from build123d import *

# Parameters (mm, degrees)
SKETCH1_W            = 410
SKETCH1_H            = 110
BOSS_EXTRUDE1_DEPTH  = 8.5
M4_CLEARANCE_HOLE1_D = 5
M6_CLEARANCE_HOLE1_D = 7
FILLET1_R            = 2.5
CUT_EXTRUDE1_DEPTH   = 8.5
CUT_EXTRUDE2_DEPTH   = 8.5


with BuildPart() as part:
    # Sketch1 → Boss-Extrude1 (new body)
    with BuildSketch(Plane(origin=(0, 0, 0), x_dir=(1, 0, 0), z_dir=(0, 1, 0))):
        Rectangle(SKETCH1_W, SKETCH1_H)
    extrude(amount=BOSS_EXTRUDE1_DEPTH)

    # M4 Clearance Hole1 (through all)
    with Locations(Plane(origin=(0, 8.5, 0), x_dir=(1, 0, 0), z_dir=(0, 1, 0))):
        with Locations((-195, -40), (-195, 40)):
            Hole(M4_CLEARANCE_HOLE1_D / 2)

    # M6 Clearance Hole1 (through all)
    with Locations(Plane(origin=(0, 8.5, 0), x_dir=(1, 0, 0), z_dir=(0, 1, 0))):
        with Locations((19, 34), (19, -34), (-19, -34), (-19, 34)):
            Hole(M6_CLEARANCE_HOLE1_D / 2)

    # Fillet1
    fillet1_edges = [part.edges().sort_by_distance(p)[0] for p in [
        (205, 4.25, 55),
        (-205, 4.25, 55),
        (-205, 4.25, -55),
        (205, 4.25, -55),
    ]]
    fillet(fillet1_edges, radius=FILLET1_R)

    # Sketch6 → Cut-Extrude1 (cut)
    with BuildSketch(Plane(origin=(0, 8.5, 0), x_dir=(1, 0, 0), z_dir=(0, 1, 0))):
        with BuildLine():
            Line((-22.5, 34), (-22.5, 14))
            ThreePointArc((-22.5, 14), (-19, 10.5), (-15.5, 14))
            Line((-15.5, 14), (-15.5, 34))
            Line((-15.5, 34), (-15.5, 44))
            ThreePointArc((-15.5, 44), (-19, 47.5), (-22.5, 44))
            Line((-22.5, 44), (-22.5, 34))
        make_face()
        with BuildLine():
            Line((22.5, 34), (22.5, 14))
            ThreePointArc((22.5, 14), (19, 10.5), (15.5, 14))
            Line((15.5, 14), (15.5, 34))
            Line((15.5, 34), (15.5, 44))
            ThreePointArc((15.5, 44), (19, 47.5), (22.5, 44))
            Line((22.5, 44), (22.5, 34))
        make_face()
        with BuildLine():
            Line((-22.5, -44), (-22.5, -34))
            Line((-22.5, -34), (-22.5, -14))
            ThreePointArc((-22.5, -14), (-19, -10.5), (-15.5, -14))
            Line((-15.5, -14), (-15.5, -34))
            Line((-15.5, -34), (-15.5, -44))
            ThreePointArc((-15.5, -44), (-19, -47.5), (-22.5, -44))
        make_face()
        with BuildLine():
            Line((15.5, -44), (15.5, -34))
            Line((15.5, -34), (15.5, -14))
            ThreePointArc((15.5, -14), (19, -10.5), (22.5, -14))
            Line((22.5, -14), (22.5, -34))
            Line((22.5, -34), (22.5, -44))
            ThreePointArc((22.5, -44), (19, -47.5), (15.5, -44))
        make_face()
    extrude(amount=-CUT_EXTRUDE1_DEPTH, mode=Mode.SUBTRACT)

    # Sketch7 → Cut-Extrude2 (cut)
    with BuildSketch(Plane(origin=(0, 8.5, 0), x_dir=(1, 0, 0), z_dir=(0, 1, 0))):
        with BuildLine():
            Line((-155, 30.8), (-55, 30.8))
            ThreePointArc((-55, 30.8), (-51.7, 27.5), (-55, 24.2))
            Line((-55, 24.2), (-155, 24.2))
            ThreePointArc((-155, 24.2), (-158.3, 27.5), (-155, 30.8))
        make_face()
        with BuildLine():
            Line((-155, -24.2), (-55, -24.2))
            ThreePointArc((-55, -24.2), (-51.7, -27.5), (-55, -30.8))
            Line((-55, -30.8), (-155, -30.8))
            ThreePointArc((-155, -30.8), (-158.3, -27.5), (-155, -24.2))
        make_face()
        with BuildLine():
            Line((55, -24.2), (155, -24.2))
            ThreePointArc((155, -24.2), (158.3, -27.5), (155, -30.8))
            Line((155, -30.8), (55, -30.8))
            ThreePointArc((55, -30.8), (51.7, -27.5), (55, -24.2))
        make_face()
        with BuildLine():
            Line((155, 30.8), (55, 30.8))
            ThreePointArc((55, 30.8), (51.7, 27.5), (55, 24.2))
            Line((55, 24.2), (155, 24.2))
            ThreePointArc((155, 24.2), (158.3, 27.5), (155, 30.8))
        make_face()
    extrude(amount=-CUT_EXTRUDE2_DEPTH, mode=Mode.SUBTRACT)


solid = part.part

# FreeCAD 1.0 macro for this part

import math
import FreeCAD as App
import Part
import Sketcher


def edges_at(feature, points):
    """Names of the edges that pass closest to the given points."""
    edges = feature.Shape.Edges
    near = lambda p: min(range(len(edges)), key=lambda i: edges[i].distToShape(Part.Vertex(*p))[0])
    return sorted({f"Edge{near(p) + 1}" for p in points})

doc = App.newDocument("Part")
body = doc.addObject("PartDesign::Body", "Body")

# Sketch on XZ plane
sketch1 = doc.addObject("Sketcher::SketchObject", "Sketch")
body.addObject(sketch1)
sketch1.AttachmentSupport = (doc.XZ_Plane, [""])
sketch1.MapMode = "FlatFace"
sketch1.addGeometry(Part.LineSegment(App.Vector(-205, -55, 0), App.Vector(-205, 55, 0)), False)
sketch1.addGeometry(Part.LineSegment(App.Vector(-205, 55, 0), App.Vector(205, 55, 0)), False)
sketch1.addGeometry(Part.LineSegment(App.Vector(205, 55, 0), App.Vector(205, -55, 0)), False)
sketch1.addGeometry(Part.LineSegment(App.Vector(205, -55, 0), App.Vector(-205, -55, 0)), False)
sketch1.addConstraint(Sketcher.Constraint("Coincident", 0, 2, 1, 1))
sketch1.addConstraint(Sketcher.Constraint("Coincident", 1, 2, 2, 1))
sketch1.addConstraint(Sketcher.Constraint("Coincident", 2, 2, 3, 1))
sketch1.addConstraint(Sketcher.Constraint("Coincident", 3, 2, 0, 1))
sketch1.addConstraint(Sketcher.Constraint("Vertical", 0))
sketch1.addConstraint(Sketcher.Constraint("Horizontal", 1))
sketch1.addConstraint(Sketcher.Constraint("Vertical", 2))
sketch1.addConstraint(Sketcher.Constraint("Horizontal", 3))
sketch1.addConstraint(Sketcher.Constraint("Symmetric", 0, 2, 2, 2, -1, 1))
sketch1.addConstraint(Sketcher.Constraint("DistanceX", 1, 1, 1, 2, 410.0))
sketch1.addConstraint(Sketcher.Constraint("DistanceY", 0, 1, 0, 2, 110.0))
pad1 = doc.addObject("PartDesign::Pad", "Pad")
body.addObject(pad1)
pad1.Profile = sketch1
pad1.Length = 8.5
pad1.Reversed = True

# Sketch on XZ plane
sketch2 = doc.addObject("Sketcher::SketchObject", "Sketch001")
body.addObject(sketch2)
sketch2.AttachmentSupport = (doc.XZ_Plane, [""])
sketch2.MapMode = "FlatFace"
sketch2.AttachmentOffset = App.Placement(App.Vector(0, 0, -8.5), App.Rotation())
sketch2.addGeometry(Part.Circle(App.Vector(-195, 40, 0), App.Vector(0, 0, 1), 2.5), False)
sketch2.addGeometry(Part.Circle(App.Vector(-195, -40, 0), App.Vector(0, 0, 1), 2.5), False)
sketch2.addConstraint(Sketcher.Constraint("Equal", 0, 1))
sketch2.addConstraint(Sketcher.Constraint("Symmetric", 0, 3, 1, 3, -1))
sketch2.addConstraint(Sketcher.Constraint("Diameter", 0, 5.0))
sketch2.addConstraint(Sketcher.Constraint("DistanceX", 0, 3, -1, 1, 195.0))
sketch2.addConstraint(Sketcher.Constraint("DistanceY", -1, 1, 0, 3, 40.0))
doc.recompute()
hole = doc.addObject("PartDesign::Hole", "Hole")
body.addObject(hole)
hole.Profile = sketch2
hole.ThreadType = "None"
hole.Diameter = 5
hole.DepthType = "ThroughAll"
hole.Reversed = True

# Sketch on XZ plane
sketch3 = doc.addObject("Sketcher::SketchObject", "Sketch002")
body.addObject(sketch3)
sketch3.AttachmentSupport = (doc.XZ_Plane, [""])
sketch3.MapMode = "FlatFace"
sketch3.AttachmentOffset = App.Placement(App.Vector(0, 0, -8.5), App.Rotation())
sketch3.addGeometry(Part.Circle(App.Vector(19, -34, 0), App.Vector(0, 0, 1), 3.5), False)
sketch3.addGeometry(Part.Circle(App.Vector(19, 34, 0), App.Vector(0, 0, 1), 3.5), False)
sketch3.addGeometry(Part.Circle(App.Vector(-19, 34, 0), App.Vector(0, 0, 1), 3.5), False)
sketch3.addGeometry(Part.Circle(App.Vector(-19, -34, 0), App.Vector(0, 0, 1), 3.5), False)
sketch3.addConstraint(Sketcher.Constraint("Equal", 0, 1))
sketch3.addConstraint(Sketcher.Constraint("Equal", 1, 2))
sketch3.addConstraint(Sketcher.Constraint("Equal", 2, 3))
sketch3.addConstraint(Sketcher.Constraint("Symmetric", 0, 3, 2, 3, -1, 1))
sketch3.addConstraint(Sketcher.Constraint("Symmetric", 1, 3, 3, 3, -1, 1))
sketch3.addConstraint(Sketcher.Constraint("Symmetric", 1, 3, 2, 3, -2))
sketch3.addConstraint(Sketcher.Constraint("Diameter", 0, 7.0))
sketch3.addConstraint(Sketcher.Constraint("DistanceX", -1, 1, 0, 3, 19.0))
sketch3.addConstraint(Sketcher.Constraint("DistanceY", 0, 3, -1, 1, 34.0))
doc.recompute()
hole2 = doc.addObject("PartDesign::Hole", "Hole001")
body.addObject(hole2)
hole2.Profile = sketch3
hole2.ThreadType = "None"
hole2.Diameter = 7
hole2.DepthType = "ThroughAll"
hole2.Reversed = True
doc.recompute()

fillet = doc.addObject("PartDesign::Fillet", "Fillet")
body.addObject(fillet)
fillet.Base = (hole2, edges_at(hole2, [
    (205, 4.25, 55),
    (-205, 4.25, 55),
    (-205, 4.25, -55),
    (205, 4.25, -55),
]))
fillet.Radius = 2.5

# Sketch on XZ plane
sketch4 = doc.addObject("Sketcher::SketchObject", "Sketch003")
body.addObject(sketch4)
sketch4.AttachmentSupport = (doc.XZ_Plane, [""])
sketch4.MapMode = "FlatFace"
sketch4.AttachmentOffset = App.Placement(App.Vector(0, 0, -8.5), App.Rotation())
sketch4.addGeometry(Part.ArcOfCircle(Part.Circle(App.Vector(-19, -14, 0), App.Vector(0, 0, 1), 3.5), math.radians(0), math.radians(180)), False)
sketch4.addGeometry(Part.LineSegment(App.Vector(-15.5, -14, 0), App.Vector(-15.5, -44, 0)), False)
sketch4.addGeometry(Part.ArcOfCircle(Part.Circle(App.Vector(-19, -44, 0), App.Vector(0, 0, 1), 3.5), math.radians(180), math.radians(360)), False)
sketch4.addGeometry(Part.LineSegment(App.Vector(-22.5, -44, 0), App.Vector(-22.5, -14, 0)), False)
sketch4.addGeometry(Part.ArcOfCircle(Part.Circle(App.Vector(19, -14, 0), App.Vector(0, 0, 1), 3.5), math.radians(0), math.radians(180)), False)
sketch4.addGeometry(Part.LineSegment(App.Vector(22.5, -14, 0), App.Vector(22.5, -44, 0)), False)
sketch4.addGeometry(Part.ArcOfCircle(Part.Circle(App.Vector(19, -44, 0), App.Vector(0, 0, 1), 3.5), math.radians(180), math.radians(360)), False)
sketch4.addGeometry(Part.LineSegment(App.Vector(15.5, -44, 0), App.Vector(15.5, -14, 0)), False)
sketch4.addGeometry(Part.LineSegment(App.Vector(-22.5, 14, 0), App.Vector(-22.5, 44, 0)), False)
sketch4.addGeometry(Part.ArcOfCircle(Part.Circle(App.Vector(-19, 44, 0), App.Vector(0, 0, 1), 3.5), math.radians(0), math.radians(180)), False)
sketch4.addGeometry(Part.LineSegment(App.Vector(-15.5, 44, 0), App.Vector(-15.5, 14, 0)), False)
sketch4.addGeometry(Part.ArcOfCircle(Part.Circle(App.Vector(-19, 14, 0), App.Vector(0, 0, 1), 3.5), math.radians(180), math.radians(360)), False)
sketch4.addGeometry(Part.LineSegment(App.Vector(15.5, 14, 0), App.Vector(15.5, 44, 0)), False)
sketch4.addGeometry(Part.ArcOfCircle(Part.Circle(App.Vector(19, 44, 0), App.Vector(0, 0, 1), 3.5), math.radians(0), math.radians(180)), False)
sketch4.addGeometry(Part.LineSegment(App.Vector(22.5, 44, 0), App.Vector(22.5, 14, 0)), False)
sketch4.addGeometry(Part.ArcOfCircle(Part.Circle(App.Vector(19, 14, 0), App.Vector(0, 0, 1), 3.5), math.radians(180), math.radians(360)), False)
sketch4.addConstraint(Sketcher.Constraint("Tangent", 0, 1, 1, 1))
sketch4.addConstraint(Sketcher.Constraint("Tangent", 1, 2, 2, 2))
sketch4.addConstraint(Sketcher.Constraint("Tangent", 2, 1, 3, 1))
sketch4.addConstraint(Sketcher.Constraint("Tangent", 3, 2, 0, 2))
sketch4.addConstraint(Sketcher.Constraint("Tangent", 4, 1, 5, 1))
sketch4.addConstraint(Sketcher.Constraint("Tangent", 5, 2, 6, 2))
sketch4.addConstraint(Sketcher.Constraint("Tangent", 6, 1, 7, 1))
sketch4.addConstraint(Sketcher.Constraint("Tangent", 7, 2, 4, 2))
sketch4.addConstraint(Sketcher.Constraint("Tangent", 8, 2, 9, 2))
sketch4.addConstraint(Sketcher.Constraint("Tangent", 9, 1, 10, 1))
sketch4.addConstraint(Sketcher.Constraint("Tangent", 10, 2, 11, 2))
sketch4.addConstraint(Sketcher.Constraint("Tangent", 11, 1, 8, 1))
sketch4.addConstraint(Sketcher.Constraint("Tangent", 12, 2, 13, 2))
sketch4.addConstraint(Sketcher.Constraint("Tangent", 13, 1, 14, 1))
sketch4.addConstraint(Sketcher.Constraint("Tangent", 14, 2, 15, 2))
sketch4.addConstraint(Sketcher.Constraint("Tangent", 15, 1, 12, 1))
sketch4.addConstraint(Sketcher.Constraint("Vertical", 1))
sketch4.addConstraint(Sketcher.Constraint("Vertical", 3))
sketch4.addConstraint(Sketcher.Constraint("Vertical", 5))
sketch4.addConstraint(Sketcher.Constraint("Vertical", 7))
sketch4.addConstraint(Sketcher.Constraint("Vertical", 8))
sketch4.addConstraint(Sketcher.Constraint("Vertical", 10))
sketch4.addConstraint(Sketcher.Constraint("Vertical", 12))
sketch4.addConstraint(Sketcher.Constraint("Vertical", 14))
sketch4.addConstraint(Sketcher.Constraint("Equal", 2, 4))
sketch4.addConstraint(Sketcher.Constraint("Equal", 6, 9))
sketch4.addConstraint(Sketcher.Constraint("Equal", 11, 13))
sketch4.addConstraint(Sketcher.Constraint("Symmetric", 6, 3, 9, 3, -1, 1))
sketch4.addConstraint(Sketcher.Constraint("Symmetric", 2, 3, 13, 3, -1, 1))
sketch4.addConstraint(Sketcher.Constraint("Symmetric", 0, 3, 4, 3, -2))
sketch4.addConstraint(Sketcher.Constraint("Horizontal", 2, 3, 6, 3))
sketch4.addConstraint(Sketcher.Constraint("Horizontal", 11, 3, 15, 3))
sketch4.addConstraint(Sketcher.Constraint("Equal", 7, 8))
sketch4.addConstraint(Sketcher.Constraint("Radius", 0, 3.5))
sketch4.addConstraint(Sketcher.Constraint("DistanceY", 1, 2, 1, 1, 30.0))
sketch4.addConstraint(Sketcher.Constraint("DistanceX", 0, 3, -1, 1, 19.0))
sketch4.addConstraint(Sketcher.Constraint("DistanceY", 0, 3, -1, 1, 14.0))
pocket1 = doc.addObject("PartDesign::Pocket", "Pocket")
body.addObject(pocket1)
pocket1.Profile = sketch4
pocket1.Length = 8.5
pocket1.Reversed = True

# Sketch on XZ plane
sketch5 = doc.addObject("Sketcher::SketchObject", "Sketch004")
body.addObject(sketch5)
sketch5.AttachmentSupport = (doc.XZ_Plane, [""])
sketch5.MapMode = "FlatFace"
sketch5.AttachmentOffset = App.Placement(App.Vector(0, 0, -8.5), App.Rotation())
sketch5.addGeometry(Part.LineSegment(App.Vector(-55, -30.8, 0), App.Vector(-155, -30.8, 0)), False)
sketch5.addGeometry(Part.ArcOfCircle(Part.Circle(App.Vector(-155, -27.5, 0), App.Vector(0, 0, 1), 3.3), math.radians(90), math.radians(270)), False)
sketch5.addGeometry(Part.LineSegment(App.Vector(-155, -24.2, 0), App.Vector(-55, -24.2, 0)), False)
sketch5.addGeometry(Part.ArcOfCircle(Part.Circle(App.Vector(-55, -27.5, 0), App.Vector(0, 0, 1), 3.3), math.radians(-90), math.radians(90)), False)
sketch5.addGeometry(Part.LineSegment(App.Vector(-55, 24.2, 0), App.Vector(-155, 24.2, 0)), False)
sketch5.addGeometry(Part.ArcOfCircle(Part.Circle(App.Vector(-155, 27.5, 0), App.Vector(0, 0, 1), 3.3), math.radians(90), math.radians(270)), False)
sketch5.addGeometry(Part.LineSegment(App.Vector(-155, 30.8, 0), App.Vector(-55, 30.8, 0)), False)
sketch5.addGeometry(Part.ArcOfCircle(Part.Circle(App.Vector(-55, 27.5, 0), App.Vector(0, 0, 1), 3.3), math.radians(-90), math.radians(90)), False)
sketch5.addGeometry(Part.LineSegment(App.Vector(155, 24.2, 0), App.Vector(55, 24.2, 0)), False)
sketch5.addGeometry(Part.ArcOfCircle(Part.Circle(App.Vector(55, 27.5, 0), App.Vector(0, 0, 1), 3.3), math.radians(90), math.radians(270)), False)
sketch5.addGeometry(Part.LineSegment(App.Vector(55, 30.8, 0), App.Vector(155, 30.8, 0)), False)
sketch5.addGeometry(Part.ArcOfCircle(Part.Circle(App.Vector(155, 27.5, 0), App.Vector(0, 0, 1), 3.3), math.radians(-90), math.radians(90)), False)
sketch5.addGeometry(Part.LineSegment(App.Vector(155, -30.8, 0), App.Vector(55, -30.8, 0)), False)
sketch5.addGeometry(Part.ArcOfCircle(Part.Circle(App.Vector(55, -27.5, 0), App.Vector(0, 0, 1), 3.3), math.radians(90), math.radians(270)), False)
sketch5.addGeometry(Part.LineSegment(App.Vector(55, -24.2, 0), App.Vector(155, -24.2, 0)), False)
sketch5.addGeometry(Part.ArcOfCircle(Part.Circle(App.Vector(155, -27.5, 0), App.Vector(0, 0, 1), 3.3), math.radians(-90), math.radians(90)), False)
sketch5.addConstraint(Sketcher.Constraint("Tangent", 0, 2, 1, 2))
sketch5.addConstraint(Sketcher.Constraint("Tangent", 1, 1, 2, 1))
sketch5.addConstraint(Sketcher.Constraint("Tangent", 2, 2, 3, 2))
sketch5.addConstraint(Sketcher.Constraint("Tangent", 3, 1, 0, 1))
sketch5.addConstraint(Sketcher.Constraint("Tangent", 4, 2, 5, 2))
sketch5.addConstraint(Sketcher.Constraint("Tangent", 5, 1, 6, 1))
sketch5.addConstraint(Sketcher.Constraint("Tangent", 6, 2, 7, 2))
sketch5.addConstraint(Sketcher.Constraint("Tangent", 7, 1, 4, 1))
sketch5.addConstraint(Sketcher.Constraint("Tangent", 8, 2, 9, 2))
sketch5.addConstraint(Sketcher.Constraint("Tangent", 9, 1, 10, 1))
sketch5.addConstraint(Sketcher.Constraint("Tangent", 10, 2, 11, 2))
sketch5.addConstraint(Sketcher.Constraint("Tangent", 11, 1, 8, 1))
sketch5.addConstraint(Sketcher.Constraint("Tangent", 12, 2, 13, 2))
sketch5.addConstraint(Sketcher.Constraint("Tangent", 13, 1, 14, 1))
sketch5.addConstraint(Sketcher.Constraint("Tangent", 14, 2, 15, 2))
sketch5.addConstraint(Sketcher.Constraint("Tangent", 15, 1, 12, 1))
sketch5.addConstraint(Sketcher.Constraint("Horizontal", 0))
sketch5.addConstraint(Sketcher.Constraint("Horizontal", 2))
sketch5.addConstraint(Sketcher.Constraint("Horizontal", 4))
sketch5.addConstraint(Sketcher.Constraint("Horizontal", 6))
sketch5.addConstraint(Sketcher.Constraint("Horizontal", 8))
sketch5.addConstraint(Sketcher.Constraint("Horizontal", 10))
sketch5.addConstraint(Sketcher.Constraint("Horizontal", 12))
sketch5.addConstraint(Sketcher.Constraint("Horizontal", 14))
sketch5.addConstraint(Sketcher.Constraint("Equal", 3, 5))
sketch5.addConstraint(Sketcher.Constraint("Equal", 7, 9))
sketch5.addConstraint(Sketcher.Constraint("Equal", 11, 13))
sketch5.addConstraint(Sketcher.Constraint("Symmetric", 3, 3, 9, 3, -1, 1))
sketch5.addConstraint(Sketcher.Constraint("Symmetric", 7, 3, 13, 3, -1, 1))
sketch5.addConstraint(Sketcher.Constraint("Symmetric", 7, 3, 9, 3, -2))
sketch5.addConstraint(Sketcher.Constraint("Vertical", 1, 3, 5, 3))
sketch5.addConstraint(Sketcher.Constraint("Vertical", 11, 3, 15, 3))
sketch5.addConstraint(Sketcher.Constraint("Equal", 6, 8))
sketch5.addConstraint(Sketcher.Constraint("Radius", 1, 3.3))
sketch5.addConstraint(Sketcher.Constraint("DistanceX", 0, 2, 0, 1, 100.0))
sketch5.addConstraint(Sketcher.Constraint("DistanceX", 1, 3, -1, 1, 155.0))
sketch5.addConstraint(Sketcher.Constraint("DistanceY", 1, 3, 5, 3, 55.0))
pocket2 = doc.addObject("PartDesign::Pocket", "Pocket001")
body.addObject(pocket2)
pocket2.Profile = sketch5
pocket2.Length = 8.5
pocket2.Reversed = True

doc.recompute()
